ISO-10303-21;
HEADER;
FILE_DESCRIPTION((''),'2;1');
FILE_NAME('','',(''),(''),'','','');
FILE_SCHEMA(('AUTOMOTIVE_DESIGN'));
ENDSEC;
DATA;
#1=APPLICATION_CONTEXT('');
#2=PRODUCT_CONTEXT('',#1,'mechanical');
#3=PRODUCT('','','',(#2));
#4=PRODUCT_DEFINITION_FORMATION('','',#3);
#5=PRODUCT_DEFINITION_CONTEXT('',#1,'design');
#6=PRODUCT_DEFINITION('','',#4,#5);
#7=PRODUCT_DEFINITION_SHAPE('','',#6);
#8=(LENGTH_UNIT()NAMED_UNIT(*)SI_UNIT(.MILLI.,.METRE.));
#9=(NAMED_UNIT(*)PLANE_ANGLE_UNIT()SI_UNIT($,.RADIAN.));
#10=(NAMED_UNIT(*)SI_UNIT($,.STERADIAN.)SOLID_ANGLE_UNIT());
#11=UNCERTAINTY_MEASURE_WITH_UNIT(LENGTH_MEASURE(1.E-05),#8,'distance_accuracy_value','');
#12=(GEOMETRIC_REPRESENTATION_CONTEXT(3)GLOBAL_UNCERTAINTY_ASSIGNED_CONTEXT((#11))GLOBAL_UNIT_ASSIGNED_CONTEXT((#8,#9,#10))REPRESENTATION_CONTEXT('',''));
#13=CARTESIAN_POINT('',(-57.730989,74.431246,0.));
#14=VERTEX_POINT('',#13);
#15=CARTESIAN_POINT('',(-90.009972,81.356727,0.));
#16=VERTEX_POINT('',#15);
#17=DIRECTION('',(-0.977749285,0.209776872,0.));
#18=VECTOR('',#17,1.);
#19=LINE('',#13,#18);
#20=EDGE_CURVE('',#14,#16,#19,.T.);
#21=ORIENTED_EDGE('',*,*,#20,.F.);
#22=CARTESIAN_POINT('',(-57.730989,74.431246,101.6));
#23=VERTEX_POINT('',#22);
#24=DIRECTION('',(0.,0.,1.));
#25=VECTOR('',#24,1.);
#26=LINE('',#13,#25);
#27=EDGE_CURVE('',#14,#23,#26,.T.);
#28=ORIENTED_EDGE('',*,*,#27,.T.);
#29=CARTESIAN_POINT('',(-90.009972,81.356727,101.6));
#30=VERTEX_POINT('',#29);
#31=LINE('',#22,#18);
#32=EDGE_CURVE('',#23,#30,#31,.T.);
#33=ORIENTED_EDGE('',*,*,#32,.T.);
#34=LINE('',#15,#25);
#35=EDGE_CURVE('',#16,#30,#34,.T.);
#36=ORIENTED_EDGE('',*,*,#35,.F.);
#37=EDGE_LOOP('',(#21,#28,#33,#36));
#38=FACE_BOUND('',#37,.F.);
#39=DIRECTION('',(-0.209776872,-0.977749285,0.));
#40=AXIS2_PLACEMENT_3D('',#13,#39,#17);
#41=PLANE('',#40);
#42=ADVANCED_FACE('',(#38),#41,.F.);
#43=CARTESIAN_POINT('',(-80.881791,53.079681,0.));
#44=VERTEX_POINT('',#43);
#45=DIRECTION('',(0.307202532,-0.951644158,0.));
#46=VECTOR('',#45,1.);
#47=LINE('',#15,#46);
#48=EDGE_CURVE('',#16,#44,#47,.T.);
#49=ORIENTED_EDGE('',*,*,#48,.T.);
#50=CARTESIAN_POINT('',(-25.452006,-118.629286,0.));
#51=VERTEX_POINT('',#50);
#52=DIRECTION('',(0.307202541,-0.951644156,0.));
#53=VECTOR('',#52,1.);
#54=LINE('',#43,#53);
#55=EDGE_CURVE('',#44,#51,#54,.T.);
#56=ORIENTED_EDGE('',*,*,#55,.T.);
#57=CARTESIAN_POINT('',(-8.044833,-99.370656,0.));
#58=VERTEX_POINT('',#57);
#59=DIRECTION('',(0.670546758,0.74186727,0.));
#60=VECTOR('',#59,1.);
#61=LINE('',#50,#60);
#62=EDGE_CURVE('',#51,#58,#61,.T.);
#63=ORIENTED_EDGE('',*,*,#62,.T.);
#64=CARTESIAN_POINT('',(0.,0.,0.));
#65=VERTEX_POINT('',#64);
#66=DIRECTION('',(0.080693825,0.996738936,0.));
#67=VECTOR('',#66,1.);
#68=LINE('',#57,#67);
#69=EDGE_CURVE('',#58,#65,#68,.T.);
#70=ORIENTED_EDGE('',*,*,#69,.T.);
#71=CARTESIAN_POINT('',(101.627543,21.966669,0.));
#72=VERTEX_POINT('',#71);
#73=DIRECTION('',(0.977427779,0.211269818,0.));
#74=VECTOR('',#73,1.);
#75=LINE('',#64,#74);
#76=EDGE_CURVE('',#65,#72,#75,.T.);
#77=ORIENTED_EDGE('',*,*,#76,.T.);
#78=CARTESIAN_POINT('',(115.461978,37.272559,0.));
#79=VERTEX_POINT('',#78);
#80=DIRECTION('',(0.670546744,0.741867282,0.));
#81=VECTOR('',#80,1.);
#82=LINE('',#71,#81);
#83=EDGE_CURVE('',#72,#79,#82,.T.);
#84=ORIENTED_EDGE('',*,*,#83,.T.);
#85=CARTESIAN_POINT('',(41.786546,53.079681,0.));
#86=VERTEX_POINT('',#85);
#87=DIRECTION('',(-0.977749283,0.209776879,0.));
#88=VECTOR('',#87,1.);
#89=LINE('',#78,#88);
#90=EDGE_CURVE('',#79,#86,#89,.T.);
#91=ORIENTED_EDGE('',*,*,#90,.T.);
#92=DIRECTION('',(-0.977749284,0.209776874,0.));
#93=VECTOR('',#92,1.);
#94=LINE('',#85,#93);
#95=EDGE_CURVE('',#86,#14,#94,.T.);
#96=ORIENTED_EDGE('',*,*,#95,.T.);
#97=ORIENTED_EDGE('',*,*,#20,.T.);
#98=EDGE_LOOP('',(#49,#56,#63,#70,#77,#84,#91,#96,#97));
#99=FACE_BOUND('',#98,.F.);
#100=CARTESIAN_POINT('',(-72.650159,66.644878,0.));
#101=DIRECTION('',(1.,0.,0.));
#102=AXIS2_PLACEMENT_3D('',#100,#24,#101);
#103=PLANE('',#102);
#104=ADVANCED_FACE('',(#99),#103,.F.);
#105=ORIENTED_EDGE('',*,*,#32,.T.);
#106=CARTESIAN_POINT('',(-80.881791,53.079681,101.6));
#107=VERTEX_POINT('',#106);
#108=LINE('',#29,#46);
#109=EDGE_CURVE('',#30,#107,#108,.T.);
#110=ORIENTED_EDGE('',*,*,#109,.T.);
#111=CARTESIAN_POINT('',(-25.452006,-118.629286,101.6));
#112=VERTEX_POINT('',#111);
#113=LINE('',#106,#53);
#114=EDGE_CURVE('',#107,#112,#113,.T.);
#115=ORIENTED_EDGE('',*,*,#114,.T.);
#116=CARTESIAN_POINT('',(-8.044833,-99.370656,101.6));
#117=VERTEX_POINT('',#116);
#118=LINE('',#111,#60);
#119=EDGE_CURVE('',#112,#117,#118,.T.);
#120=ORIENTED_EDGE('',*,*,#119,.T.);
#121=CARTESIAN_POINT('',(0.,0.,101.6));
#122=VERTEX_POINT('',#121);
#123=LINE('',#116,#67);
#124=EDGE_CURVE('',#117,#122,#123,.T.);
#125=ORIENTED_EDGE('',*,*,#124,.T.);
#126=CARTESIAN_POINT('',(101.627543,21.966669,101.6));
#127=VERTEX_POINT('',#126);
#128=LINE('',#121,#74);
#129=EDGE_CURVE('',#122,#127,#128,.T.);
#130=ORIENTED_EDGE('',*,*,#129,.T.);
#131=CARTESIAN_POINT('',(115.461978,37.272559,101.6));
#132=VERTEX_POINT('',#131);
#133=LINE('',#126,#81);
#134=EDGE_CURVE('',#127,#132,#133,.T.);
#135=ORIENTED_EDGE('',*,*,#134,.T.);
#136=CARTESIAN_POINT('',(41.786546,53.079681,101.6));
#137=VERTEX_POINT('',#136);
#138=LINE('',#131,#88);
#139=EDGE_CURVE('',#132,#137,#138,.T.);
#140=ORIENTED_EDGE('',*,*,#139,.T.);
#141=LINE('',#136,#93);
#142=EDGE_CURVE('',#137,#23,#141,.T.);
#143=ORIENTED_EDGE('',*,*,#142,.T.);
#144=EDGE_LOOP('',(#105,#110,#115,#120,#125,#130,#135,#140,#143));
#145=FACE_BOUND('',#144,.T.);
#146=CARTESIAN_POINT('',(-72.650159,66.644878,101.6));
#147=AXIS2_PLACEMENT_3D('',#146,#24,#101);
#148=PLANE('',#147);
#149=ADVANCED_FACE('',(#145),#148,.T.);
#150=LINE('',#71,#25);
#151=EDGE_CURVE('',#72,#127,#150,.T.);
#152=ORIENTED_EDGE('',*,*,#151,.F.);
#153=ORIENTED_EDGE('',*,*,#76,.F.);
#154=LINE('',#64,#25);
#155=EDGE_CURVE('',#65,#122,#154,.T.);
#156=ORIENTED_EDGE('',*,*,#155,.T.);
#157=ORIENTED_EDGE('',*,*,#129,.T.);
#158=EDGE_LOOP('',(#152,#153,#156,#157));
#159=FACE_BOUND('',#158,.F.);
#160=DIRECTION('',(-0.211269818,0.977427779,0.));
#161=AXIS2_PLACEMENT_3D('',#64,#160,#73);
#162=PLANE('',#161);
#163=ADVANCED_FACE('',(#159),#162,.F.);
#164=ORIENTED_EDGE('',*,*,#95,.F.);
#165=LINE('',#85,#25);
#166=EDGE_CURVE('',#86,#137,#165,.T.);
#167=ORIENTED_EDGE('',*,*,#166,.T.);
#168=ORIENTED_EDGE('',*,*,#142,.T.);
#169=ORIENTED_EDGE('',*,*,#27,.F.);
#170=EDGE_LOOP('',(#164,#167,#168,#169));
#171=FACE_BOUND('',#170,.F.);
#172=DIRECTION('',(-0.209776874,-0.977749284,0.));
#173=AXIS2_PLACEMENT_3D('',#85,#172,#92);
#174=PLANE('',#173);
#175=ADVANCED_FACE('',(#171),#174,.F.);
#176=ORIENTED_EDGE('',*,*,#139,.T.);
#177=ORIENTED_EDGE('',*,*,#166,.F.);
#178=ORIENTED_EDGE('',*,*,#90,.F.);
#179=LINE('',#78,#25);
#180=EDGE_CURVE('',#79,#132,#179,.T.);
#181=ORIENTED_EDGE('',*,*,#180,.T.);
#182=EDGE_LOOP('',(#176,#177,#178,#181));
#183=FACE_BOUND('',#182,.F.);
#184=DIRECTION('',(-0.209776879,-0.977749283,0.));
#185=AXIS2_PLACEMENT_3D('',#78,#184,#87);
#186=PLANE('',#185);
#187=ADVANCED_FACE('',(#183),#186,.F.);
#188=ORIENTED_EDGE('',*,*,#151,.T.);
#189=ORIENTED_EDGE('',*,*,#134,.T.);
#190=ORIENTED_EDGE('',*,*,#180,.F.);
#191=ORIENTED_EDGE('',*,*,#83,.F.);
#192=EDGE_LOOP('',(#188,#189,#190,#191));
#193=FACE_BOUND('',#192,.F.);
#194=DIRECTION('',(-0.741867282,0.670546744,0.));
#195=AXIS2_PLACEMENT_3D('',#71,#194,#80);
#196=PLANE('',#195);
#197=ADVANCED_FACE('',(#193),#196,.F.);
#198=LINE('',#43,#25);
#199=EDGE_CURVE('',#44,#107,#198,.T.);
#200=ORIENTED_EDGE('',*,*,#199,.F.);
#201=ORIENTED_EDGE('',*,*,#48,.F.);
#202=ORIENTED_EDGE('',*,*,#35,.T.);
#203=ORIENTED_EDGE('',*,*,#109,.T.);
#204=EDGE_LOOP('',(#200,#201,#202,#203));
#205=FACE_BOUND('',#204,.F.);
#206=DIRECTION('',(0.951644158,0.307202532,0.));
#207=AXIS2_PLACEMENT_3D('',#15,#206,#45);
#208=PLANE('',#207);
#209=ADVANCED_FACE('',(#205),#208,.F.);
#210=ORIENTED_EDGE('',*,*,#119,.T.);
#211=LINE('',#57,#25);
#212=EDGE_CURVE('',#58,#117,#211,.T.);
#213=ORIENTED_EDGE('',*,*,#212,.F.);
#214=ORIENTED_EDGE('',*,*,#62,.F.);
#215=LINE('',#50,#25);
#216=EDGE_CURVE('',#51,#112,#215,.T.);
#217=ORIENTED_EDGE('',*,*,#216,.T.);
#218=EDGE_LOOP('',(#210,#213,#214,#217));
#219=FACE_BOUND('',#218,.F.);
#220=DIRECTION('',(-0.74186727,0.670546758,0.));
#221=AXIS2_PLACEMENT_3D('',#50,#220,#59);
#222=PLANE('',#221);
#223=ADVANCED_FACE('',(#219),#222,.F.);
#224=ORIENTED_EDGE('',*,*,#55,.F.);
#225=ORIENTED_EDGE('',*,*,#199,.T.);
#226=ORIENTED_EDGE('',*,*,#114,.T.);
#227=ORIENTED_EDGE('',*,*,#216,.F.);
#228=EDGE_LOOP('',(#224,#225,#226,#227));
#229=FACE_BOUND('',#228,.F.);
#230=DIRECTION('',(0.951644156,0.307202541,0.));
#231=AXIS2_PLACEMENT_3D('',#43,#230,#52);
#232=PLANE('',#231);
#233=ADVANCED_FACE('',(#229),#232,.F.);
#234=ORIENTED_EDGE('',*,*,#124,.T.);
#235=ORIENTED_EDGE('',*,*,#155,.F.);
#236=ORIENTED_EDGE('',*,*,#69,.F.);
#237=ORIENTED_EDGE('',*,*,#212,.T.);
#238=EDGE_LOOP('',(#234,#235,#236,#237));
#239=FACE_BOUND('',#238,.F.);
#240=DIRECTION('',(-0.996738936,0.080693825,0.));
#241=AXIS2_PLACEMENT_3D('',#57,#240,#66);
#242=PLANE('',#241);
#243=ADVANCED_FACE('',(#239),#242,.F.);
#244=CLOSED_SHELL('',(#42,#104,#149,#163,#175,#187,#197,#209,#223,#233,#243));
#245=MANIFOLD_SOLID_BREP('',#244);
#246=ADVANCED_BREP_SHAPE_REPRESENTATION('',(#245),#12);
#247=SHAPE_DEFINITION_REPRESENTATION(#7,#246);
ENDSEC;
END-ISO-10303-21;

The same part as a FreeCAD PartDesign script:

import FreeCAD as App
import Part
import Sketcher
Q = App.Units.Quantity


def add_polygon(sketch, points):
    """Adds a closed chain of lines whose ends are joined by coincident constraints."""
    first, n = sketch.GeometryCount, len(points)
    for a, b in zip(points, points[1:] + points[:1]):
        sketch.addGeometry(Part.LineSegment(App.Vector(*a, 0), App.Vector(*b, 0)), False)
    for i in range(n):
        sketch.addConstraint(Sketcher.Constraint("Coincident", first + i, 2, first + (i + 1) % n, 1))

doc = App.newDocument("Part")
params = doc.addObject("Spreadsheet::Sheet", "Params")
for row, (alias, value) in enumerate([
    ("pad1_length", "4 in"),
], start=1):
    params.set(f"A{row}", alias)
    params.set(f"B{row}", "=" + value)
    params.setAlias(f"B{row}", alias)

body = doc.addObject("PartDesign::Body", "Body")

# Sketch on XY plane
sketch1 = body.newObject("Sketcher::SketchObject", "Sketch")
sketch1.AttachmentSupport = (doc.getObject("XY_Plane"), [""])
sketch1.MapMode = "FlatFace"
add_polygon(sketch1, [(-8.044833, -99.370656), (0, 0), (101.627543, 21.966669), (115.461978, 37.272559), (41.786546, 53.079681), (-57.730989, 74.431246), (-90.009972, 81.356727), (-80.881791, 53.079681), (-25.452006, -118.629286)])  # lines 0-8
sketch1.addConstraint([
    Sketcher.Constraint("Coincident", 0, 2, -1, 1),
    Sketcher.Constraint("Parallel", 3, 4),
    Sketcher.Constraint("Parallel", 4, 5),
    Sketcher.Constraint("Parallel", 6, 7),
    Sketcher.Constraint("Parallel", 2, 8),
    Sketcher.Constraint("Horizontal", 3, 2, 6, 2),
    Sketcher.Constraint("Distance", 0, Q("99.69577 mm")),
    Sketcher.Constraint("Distance", 3, Q("75.35207 mm")),
    Sketcher.Constraint("Distance", 5, Q("33.013558 mm")),
    Sketcher.Constraint("Distance", 8, Q("25.959671 mm")),
    Sketcher.Constraint("DistanceY", -1, 1, 1, 2, Q("21.966669 mm")),
    Sketcher.Constraint("DistanceX", -1, 1, 2, 2, Q("115.461978 mm")),
    Sketcher.Constraint("DistanceY", -1, 1, 2, 2, Q("37.272559 mm")),
    Sketcher.Constraint("DistanceY", -1, 1, 3, 2, Q("53.079681 mm")),
    Sketcher.Constraint("DistanceX", 4, 2, -1, 1, Q("57.730989 mm")),
    Sketcher.Constraint("DistanceX", 6, 2, -1, 1, Q("80.881791 mm")),
    Sketcher.Constraint("DistanceX", 4, 2, 1, 2, Q("159.358532 mm")),
])
pad1 = body.newObject("PartDesign::Pad", "Pad")
pad1.Profile = sketch1
pad1.setExpression("Length", "Params.pad1_length")

doc.recompute()
